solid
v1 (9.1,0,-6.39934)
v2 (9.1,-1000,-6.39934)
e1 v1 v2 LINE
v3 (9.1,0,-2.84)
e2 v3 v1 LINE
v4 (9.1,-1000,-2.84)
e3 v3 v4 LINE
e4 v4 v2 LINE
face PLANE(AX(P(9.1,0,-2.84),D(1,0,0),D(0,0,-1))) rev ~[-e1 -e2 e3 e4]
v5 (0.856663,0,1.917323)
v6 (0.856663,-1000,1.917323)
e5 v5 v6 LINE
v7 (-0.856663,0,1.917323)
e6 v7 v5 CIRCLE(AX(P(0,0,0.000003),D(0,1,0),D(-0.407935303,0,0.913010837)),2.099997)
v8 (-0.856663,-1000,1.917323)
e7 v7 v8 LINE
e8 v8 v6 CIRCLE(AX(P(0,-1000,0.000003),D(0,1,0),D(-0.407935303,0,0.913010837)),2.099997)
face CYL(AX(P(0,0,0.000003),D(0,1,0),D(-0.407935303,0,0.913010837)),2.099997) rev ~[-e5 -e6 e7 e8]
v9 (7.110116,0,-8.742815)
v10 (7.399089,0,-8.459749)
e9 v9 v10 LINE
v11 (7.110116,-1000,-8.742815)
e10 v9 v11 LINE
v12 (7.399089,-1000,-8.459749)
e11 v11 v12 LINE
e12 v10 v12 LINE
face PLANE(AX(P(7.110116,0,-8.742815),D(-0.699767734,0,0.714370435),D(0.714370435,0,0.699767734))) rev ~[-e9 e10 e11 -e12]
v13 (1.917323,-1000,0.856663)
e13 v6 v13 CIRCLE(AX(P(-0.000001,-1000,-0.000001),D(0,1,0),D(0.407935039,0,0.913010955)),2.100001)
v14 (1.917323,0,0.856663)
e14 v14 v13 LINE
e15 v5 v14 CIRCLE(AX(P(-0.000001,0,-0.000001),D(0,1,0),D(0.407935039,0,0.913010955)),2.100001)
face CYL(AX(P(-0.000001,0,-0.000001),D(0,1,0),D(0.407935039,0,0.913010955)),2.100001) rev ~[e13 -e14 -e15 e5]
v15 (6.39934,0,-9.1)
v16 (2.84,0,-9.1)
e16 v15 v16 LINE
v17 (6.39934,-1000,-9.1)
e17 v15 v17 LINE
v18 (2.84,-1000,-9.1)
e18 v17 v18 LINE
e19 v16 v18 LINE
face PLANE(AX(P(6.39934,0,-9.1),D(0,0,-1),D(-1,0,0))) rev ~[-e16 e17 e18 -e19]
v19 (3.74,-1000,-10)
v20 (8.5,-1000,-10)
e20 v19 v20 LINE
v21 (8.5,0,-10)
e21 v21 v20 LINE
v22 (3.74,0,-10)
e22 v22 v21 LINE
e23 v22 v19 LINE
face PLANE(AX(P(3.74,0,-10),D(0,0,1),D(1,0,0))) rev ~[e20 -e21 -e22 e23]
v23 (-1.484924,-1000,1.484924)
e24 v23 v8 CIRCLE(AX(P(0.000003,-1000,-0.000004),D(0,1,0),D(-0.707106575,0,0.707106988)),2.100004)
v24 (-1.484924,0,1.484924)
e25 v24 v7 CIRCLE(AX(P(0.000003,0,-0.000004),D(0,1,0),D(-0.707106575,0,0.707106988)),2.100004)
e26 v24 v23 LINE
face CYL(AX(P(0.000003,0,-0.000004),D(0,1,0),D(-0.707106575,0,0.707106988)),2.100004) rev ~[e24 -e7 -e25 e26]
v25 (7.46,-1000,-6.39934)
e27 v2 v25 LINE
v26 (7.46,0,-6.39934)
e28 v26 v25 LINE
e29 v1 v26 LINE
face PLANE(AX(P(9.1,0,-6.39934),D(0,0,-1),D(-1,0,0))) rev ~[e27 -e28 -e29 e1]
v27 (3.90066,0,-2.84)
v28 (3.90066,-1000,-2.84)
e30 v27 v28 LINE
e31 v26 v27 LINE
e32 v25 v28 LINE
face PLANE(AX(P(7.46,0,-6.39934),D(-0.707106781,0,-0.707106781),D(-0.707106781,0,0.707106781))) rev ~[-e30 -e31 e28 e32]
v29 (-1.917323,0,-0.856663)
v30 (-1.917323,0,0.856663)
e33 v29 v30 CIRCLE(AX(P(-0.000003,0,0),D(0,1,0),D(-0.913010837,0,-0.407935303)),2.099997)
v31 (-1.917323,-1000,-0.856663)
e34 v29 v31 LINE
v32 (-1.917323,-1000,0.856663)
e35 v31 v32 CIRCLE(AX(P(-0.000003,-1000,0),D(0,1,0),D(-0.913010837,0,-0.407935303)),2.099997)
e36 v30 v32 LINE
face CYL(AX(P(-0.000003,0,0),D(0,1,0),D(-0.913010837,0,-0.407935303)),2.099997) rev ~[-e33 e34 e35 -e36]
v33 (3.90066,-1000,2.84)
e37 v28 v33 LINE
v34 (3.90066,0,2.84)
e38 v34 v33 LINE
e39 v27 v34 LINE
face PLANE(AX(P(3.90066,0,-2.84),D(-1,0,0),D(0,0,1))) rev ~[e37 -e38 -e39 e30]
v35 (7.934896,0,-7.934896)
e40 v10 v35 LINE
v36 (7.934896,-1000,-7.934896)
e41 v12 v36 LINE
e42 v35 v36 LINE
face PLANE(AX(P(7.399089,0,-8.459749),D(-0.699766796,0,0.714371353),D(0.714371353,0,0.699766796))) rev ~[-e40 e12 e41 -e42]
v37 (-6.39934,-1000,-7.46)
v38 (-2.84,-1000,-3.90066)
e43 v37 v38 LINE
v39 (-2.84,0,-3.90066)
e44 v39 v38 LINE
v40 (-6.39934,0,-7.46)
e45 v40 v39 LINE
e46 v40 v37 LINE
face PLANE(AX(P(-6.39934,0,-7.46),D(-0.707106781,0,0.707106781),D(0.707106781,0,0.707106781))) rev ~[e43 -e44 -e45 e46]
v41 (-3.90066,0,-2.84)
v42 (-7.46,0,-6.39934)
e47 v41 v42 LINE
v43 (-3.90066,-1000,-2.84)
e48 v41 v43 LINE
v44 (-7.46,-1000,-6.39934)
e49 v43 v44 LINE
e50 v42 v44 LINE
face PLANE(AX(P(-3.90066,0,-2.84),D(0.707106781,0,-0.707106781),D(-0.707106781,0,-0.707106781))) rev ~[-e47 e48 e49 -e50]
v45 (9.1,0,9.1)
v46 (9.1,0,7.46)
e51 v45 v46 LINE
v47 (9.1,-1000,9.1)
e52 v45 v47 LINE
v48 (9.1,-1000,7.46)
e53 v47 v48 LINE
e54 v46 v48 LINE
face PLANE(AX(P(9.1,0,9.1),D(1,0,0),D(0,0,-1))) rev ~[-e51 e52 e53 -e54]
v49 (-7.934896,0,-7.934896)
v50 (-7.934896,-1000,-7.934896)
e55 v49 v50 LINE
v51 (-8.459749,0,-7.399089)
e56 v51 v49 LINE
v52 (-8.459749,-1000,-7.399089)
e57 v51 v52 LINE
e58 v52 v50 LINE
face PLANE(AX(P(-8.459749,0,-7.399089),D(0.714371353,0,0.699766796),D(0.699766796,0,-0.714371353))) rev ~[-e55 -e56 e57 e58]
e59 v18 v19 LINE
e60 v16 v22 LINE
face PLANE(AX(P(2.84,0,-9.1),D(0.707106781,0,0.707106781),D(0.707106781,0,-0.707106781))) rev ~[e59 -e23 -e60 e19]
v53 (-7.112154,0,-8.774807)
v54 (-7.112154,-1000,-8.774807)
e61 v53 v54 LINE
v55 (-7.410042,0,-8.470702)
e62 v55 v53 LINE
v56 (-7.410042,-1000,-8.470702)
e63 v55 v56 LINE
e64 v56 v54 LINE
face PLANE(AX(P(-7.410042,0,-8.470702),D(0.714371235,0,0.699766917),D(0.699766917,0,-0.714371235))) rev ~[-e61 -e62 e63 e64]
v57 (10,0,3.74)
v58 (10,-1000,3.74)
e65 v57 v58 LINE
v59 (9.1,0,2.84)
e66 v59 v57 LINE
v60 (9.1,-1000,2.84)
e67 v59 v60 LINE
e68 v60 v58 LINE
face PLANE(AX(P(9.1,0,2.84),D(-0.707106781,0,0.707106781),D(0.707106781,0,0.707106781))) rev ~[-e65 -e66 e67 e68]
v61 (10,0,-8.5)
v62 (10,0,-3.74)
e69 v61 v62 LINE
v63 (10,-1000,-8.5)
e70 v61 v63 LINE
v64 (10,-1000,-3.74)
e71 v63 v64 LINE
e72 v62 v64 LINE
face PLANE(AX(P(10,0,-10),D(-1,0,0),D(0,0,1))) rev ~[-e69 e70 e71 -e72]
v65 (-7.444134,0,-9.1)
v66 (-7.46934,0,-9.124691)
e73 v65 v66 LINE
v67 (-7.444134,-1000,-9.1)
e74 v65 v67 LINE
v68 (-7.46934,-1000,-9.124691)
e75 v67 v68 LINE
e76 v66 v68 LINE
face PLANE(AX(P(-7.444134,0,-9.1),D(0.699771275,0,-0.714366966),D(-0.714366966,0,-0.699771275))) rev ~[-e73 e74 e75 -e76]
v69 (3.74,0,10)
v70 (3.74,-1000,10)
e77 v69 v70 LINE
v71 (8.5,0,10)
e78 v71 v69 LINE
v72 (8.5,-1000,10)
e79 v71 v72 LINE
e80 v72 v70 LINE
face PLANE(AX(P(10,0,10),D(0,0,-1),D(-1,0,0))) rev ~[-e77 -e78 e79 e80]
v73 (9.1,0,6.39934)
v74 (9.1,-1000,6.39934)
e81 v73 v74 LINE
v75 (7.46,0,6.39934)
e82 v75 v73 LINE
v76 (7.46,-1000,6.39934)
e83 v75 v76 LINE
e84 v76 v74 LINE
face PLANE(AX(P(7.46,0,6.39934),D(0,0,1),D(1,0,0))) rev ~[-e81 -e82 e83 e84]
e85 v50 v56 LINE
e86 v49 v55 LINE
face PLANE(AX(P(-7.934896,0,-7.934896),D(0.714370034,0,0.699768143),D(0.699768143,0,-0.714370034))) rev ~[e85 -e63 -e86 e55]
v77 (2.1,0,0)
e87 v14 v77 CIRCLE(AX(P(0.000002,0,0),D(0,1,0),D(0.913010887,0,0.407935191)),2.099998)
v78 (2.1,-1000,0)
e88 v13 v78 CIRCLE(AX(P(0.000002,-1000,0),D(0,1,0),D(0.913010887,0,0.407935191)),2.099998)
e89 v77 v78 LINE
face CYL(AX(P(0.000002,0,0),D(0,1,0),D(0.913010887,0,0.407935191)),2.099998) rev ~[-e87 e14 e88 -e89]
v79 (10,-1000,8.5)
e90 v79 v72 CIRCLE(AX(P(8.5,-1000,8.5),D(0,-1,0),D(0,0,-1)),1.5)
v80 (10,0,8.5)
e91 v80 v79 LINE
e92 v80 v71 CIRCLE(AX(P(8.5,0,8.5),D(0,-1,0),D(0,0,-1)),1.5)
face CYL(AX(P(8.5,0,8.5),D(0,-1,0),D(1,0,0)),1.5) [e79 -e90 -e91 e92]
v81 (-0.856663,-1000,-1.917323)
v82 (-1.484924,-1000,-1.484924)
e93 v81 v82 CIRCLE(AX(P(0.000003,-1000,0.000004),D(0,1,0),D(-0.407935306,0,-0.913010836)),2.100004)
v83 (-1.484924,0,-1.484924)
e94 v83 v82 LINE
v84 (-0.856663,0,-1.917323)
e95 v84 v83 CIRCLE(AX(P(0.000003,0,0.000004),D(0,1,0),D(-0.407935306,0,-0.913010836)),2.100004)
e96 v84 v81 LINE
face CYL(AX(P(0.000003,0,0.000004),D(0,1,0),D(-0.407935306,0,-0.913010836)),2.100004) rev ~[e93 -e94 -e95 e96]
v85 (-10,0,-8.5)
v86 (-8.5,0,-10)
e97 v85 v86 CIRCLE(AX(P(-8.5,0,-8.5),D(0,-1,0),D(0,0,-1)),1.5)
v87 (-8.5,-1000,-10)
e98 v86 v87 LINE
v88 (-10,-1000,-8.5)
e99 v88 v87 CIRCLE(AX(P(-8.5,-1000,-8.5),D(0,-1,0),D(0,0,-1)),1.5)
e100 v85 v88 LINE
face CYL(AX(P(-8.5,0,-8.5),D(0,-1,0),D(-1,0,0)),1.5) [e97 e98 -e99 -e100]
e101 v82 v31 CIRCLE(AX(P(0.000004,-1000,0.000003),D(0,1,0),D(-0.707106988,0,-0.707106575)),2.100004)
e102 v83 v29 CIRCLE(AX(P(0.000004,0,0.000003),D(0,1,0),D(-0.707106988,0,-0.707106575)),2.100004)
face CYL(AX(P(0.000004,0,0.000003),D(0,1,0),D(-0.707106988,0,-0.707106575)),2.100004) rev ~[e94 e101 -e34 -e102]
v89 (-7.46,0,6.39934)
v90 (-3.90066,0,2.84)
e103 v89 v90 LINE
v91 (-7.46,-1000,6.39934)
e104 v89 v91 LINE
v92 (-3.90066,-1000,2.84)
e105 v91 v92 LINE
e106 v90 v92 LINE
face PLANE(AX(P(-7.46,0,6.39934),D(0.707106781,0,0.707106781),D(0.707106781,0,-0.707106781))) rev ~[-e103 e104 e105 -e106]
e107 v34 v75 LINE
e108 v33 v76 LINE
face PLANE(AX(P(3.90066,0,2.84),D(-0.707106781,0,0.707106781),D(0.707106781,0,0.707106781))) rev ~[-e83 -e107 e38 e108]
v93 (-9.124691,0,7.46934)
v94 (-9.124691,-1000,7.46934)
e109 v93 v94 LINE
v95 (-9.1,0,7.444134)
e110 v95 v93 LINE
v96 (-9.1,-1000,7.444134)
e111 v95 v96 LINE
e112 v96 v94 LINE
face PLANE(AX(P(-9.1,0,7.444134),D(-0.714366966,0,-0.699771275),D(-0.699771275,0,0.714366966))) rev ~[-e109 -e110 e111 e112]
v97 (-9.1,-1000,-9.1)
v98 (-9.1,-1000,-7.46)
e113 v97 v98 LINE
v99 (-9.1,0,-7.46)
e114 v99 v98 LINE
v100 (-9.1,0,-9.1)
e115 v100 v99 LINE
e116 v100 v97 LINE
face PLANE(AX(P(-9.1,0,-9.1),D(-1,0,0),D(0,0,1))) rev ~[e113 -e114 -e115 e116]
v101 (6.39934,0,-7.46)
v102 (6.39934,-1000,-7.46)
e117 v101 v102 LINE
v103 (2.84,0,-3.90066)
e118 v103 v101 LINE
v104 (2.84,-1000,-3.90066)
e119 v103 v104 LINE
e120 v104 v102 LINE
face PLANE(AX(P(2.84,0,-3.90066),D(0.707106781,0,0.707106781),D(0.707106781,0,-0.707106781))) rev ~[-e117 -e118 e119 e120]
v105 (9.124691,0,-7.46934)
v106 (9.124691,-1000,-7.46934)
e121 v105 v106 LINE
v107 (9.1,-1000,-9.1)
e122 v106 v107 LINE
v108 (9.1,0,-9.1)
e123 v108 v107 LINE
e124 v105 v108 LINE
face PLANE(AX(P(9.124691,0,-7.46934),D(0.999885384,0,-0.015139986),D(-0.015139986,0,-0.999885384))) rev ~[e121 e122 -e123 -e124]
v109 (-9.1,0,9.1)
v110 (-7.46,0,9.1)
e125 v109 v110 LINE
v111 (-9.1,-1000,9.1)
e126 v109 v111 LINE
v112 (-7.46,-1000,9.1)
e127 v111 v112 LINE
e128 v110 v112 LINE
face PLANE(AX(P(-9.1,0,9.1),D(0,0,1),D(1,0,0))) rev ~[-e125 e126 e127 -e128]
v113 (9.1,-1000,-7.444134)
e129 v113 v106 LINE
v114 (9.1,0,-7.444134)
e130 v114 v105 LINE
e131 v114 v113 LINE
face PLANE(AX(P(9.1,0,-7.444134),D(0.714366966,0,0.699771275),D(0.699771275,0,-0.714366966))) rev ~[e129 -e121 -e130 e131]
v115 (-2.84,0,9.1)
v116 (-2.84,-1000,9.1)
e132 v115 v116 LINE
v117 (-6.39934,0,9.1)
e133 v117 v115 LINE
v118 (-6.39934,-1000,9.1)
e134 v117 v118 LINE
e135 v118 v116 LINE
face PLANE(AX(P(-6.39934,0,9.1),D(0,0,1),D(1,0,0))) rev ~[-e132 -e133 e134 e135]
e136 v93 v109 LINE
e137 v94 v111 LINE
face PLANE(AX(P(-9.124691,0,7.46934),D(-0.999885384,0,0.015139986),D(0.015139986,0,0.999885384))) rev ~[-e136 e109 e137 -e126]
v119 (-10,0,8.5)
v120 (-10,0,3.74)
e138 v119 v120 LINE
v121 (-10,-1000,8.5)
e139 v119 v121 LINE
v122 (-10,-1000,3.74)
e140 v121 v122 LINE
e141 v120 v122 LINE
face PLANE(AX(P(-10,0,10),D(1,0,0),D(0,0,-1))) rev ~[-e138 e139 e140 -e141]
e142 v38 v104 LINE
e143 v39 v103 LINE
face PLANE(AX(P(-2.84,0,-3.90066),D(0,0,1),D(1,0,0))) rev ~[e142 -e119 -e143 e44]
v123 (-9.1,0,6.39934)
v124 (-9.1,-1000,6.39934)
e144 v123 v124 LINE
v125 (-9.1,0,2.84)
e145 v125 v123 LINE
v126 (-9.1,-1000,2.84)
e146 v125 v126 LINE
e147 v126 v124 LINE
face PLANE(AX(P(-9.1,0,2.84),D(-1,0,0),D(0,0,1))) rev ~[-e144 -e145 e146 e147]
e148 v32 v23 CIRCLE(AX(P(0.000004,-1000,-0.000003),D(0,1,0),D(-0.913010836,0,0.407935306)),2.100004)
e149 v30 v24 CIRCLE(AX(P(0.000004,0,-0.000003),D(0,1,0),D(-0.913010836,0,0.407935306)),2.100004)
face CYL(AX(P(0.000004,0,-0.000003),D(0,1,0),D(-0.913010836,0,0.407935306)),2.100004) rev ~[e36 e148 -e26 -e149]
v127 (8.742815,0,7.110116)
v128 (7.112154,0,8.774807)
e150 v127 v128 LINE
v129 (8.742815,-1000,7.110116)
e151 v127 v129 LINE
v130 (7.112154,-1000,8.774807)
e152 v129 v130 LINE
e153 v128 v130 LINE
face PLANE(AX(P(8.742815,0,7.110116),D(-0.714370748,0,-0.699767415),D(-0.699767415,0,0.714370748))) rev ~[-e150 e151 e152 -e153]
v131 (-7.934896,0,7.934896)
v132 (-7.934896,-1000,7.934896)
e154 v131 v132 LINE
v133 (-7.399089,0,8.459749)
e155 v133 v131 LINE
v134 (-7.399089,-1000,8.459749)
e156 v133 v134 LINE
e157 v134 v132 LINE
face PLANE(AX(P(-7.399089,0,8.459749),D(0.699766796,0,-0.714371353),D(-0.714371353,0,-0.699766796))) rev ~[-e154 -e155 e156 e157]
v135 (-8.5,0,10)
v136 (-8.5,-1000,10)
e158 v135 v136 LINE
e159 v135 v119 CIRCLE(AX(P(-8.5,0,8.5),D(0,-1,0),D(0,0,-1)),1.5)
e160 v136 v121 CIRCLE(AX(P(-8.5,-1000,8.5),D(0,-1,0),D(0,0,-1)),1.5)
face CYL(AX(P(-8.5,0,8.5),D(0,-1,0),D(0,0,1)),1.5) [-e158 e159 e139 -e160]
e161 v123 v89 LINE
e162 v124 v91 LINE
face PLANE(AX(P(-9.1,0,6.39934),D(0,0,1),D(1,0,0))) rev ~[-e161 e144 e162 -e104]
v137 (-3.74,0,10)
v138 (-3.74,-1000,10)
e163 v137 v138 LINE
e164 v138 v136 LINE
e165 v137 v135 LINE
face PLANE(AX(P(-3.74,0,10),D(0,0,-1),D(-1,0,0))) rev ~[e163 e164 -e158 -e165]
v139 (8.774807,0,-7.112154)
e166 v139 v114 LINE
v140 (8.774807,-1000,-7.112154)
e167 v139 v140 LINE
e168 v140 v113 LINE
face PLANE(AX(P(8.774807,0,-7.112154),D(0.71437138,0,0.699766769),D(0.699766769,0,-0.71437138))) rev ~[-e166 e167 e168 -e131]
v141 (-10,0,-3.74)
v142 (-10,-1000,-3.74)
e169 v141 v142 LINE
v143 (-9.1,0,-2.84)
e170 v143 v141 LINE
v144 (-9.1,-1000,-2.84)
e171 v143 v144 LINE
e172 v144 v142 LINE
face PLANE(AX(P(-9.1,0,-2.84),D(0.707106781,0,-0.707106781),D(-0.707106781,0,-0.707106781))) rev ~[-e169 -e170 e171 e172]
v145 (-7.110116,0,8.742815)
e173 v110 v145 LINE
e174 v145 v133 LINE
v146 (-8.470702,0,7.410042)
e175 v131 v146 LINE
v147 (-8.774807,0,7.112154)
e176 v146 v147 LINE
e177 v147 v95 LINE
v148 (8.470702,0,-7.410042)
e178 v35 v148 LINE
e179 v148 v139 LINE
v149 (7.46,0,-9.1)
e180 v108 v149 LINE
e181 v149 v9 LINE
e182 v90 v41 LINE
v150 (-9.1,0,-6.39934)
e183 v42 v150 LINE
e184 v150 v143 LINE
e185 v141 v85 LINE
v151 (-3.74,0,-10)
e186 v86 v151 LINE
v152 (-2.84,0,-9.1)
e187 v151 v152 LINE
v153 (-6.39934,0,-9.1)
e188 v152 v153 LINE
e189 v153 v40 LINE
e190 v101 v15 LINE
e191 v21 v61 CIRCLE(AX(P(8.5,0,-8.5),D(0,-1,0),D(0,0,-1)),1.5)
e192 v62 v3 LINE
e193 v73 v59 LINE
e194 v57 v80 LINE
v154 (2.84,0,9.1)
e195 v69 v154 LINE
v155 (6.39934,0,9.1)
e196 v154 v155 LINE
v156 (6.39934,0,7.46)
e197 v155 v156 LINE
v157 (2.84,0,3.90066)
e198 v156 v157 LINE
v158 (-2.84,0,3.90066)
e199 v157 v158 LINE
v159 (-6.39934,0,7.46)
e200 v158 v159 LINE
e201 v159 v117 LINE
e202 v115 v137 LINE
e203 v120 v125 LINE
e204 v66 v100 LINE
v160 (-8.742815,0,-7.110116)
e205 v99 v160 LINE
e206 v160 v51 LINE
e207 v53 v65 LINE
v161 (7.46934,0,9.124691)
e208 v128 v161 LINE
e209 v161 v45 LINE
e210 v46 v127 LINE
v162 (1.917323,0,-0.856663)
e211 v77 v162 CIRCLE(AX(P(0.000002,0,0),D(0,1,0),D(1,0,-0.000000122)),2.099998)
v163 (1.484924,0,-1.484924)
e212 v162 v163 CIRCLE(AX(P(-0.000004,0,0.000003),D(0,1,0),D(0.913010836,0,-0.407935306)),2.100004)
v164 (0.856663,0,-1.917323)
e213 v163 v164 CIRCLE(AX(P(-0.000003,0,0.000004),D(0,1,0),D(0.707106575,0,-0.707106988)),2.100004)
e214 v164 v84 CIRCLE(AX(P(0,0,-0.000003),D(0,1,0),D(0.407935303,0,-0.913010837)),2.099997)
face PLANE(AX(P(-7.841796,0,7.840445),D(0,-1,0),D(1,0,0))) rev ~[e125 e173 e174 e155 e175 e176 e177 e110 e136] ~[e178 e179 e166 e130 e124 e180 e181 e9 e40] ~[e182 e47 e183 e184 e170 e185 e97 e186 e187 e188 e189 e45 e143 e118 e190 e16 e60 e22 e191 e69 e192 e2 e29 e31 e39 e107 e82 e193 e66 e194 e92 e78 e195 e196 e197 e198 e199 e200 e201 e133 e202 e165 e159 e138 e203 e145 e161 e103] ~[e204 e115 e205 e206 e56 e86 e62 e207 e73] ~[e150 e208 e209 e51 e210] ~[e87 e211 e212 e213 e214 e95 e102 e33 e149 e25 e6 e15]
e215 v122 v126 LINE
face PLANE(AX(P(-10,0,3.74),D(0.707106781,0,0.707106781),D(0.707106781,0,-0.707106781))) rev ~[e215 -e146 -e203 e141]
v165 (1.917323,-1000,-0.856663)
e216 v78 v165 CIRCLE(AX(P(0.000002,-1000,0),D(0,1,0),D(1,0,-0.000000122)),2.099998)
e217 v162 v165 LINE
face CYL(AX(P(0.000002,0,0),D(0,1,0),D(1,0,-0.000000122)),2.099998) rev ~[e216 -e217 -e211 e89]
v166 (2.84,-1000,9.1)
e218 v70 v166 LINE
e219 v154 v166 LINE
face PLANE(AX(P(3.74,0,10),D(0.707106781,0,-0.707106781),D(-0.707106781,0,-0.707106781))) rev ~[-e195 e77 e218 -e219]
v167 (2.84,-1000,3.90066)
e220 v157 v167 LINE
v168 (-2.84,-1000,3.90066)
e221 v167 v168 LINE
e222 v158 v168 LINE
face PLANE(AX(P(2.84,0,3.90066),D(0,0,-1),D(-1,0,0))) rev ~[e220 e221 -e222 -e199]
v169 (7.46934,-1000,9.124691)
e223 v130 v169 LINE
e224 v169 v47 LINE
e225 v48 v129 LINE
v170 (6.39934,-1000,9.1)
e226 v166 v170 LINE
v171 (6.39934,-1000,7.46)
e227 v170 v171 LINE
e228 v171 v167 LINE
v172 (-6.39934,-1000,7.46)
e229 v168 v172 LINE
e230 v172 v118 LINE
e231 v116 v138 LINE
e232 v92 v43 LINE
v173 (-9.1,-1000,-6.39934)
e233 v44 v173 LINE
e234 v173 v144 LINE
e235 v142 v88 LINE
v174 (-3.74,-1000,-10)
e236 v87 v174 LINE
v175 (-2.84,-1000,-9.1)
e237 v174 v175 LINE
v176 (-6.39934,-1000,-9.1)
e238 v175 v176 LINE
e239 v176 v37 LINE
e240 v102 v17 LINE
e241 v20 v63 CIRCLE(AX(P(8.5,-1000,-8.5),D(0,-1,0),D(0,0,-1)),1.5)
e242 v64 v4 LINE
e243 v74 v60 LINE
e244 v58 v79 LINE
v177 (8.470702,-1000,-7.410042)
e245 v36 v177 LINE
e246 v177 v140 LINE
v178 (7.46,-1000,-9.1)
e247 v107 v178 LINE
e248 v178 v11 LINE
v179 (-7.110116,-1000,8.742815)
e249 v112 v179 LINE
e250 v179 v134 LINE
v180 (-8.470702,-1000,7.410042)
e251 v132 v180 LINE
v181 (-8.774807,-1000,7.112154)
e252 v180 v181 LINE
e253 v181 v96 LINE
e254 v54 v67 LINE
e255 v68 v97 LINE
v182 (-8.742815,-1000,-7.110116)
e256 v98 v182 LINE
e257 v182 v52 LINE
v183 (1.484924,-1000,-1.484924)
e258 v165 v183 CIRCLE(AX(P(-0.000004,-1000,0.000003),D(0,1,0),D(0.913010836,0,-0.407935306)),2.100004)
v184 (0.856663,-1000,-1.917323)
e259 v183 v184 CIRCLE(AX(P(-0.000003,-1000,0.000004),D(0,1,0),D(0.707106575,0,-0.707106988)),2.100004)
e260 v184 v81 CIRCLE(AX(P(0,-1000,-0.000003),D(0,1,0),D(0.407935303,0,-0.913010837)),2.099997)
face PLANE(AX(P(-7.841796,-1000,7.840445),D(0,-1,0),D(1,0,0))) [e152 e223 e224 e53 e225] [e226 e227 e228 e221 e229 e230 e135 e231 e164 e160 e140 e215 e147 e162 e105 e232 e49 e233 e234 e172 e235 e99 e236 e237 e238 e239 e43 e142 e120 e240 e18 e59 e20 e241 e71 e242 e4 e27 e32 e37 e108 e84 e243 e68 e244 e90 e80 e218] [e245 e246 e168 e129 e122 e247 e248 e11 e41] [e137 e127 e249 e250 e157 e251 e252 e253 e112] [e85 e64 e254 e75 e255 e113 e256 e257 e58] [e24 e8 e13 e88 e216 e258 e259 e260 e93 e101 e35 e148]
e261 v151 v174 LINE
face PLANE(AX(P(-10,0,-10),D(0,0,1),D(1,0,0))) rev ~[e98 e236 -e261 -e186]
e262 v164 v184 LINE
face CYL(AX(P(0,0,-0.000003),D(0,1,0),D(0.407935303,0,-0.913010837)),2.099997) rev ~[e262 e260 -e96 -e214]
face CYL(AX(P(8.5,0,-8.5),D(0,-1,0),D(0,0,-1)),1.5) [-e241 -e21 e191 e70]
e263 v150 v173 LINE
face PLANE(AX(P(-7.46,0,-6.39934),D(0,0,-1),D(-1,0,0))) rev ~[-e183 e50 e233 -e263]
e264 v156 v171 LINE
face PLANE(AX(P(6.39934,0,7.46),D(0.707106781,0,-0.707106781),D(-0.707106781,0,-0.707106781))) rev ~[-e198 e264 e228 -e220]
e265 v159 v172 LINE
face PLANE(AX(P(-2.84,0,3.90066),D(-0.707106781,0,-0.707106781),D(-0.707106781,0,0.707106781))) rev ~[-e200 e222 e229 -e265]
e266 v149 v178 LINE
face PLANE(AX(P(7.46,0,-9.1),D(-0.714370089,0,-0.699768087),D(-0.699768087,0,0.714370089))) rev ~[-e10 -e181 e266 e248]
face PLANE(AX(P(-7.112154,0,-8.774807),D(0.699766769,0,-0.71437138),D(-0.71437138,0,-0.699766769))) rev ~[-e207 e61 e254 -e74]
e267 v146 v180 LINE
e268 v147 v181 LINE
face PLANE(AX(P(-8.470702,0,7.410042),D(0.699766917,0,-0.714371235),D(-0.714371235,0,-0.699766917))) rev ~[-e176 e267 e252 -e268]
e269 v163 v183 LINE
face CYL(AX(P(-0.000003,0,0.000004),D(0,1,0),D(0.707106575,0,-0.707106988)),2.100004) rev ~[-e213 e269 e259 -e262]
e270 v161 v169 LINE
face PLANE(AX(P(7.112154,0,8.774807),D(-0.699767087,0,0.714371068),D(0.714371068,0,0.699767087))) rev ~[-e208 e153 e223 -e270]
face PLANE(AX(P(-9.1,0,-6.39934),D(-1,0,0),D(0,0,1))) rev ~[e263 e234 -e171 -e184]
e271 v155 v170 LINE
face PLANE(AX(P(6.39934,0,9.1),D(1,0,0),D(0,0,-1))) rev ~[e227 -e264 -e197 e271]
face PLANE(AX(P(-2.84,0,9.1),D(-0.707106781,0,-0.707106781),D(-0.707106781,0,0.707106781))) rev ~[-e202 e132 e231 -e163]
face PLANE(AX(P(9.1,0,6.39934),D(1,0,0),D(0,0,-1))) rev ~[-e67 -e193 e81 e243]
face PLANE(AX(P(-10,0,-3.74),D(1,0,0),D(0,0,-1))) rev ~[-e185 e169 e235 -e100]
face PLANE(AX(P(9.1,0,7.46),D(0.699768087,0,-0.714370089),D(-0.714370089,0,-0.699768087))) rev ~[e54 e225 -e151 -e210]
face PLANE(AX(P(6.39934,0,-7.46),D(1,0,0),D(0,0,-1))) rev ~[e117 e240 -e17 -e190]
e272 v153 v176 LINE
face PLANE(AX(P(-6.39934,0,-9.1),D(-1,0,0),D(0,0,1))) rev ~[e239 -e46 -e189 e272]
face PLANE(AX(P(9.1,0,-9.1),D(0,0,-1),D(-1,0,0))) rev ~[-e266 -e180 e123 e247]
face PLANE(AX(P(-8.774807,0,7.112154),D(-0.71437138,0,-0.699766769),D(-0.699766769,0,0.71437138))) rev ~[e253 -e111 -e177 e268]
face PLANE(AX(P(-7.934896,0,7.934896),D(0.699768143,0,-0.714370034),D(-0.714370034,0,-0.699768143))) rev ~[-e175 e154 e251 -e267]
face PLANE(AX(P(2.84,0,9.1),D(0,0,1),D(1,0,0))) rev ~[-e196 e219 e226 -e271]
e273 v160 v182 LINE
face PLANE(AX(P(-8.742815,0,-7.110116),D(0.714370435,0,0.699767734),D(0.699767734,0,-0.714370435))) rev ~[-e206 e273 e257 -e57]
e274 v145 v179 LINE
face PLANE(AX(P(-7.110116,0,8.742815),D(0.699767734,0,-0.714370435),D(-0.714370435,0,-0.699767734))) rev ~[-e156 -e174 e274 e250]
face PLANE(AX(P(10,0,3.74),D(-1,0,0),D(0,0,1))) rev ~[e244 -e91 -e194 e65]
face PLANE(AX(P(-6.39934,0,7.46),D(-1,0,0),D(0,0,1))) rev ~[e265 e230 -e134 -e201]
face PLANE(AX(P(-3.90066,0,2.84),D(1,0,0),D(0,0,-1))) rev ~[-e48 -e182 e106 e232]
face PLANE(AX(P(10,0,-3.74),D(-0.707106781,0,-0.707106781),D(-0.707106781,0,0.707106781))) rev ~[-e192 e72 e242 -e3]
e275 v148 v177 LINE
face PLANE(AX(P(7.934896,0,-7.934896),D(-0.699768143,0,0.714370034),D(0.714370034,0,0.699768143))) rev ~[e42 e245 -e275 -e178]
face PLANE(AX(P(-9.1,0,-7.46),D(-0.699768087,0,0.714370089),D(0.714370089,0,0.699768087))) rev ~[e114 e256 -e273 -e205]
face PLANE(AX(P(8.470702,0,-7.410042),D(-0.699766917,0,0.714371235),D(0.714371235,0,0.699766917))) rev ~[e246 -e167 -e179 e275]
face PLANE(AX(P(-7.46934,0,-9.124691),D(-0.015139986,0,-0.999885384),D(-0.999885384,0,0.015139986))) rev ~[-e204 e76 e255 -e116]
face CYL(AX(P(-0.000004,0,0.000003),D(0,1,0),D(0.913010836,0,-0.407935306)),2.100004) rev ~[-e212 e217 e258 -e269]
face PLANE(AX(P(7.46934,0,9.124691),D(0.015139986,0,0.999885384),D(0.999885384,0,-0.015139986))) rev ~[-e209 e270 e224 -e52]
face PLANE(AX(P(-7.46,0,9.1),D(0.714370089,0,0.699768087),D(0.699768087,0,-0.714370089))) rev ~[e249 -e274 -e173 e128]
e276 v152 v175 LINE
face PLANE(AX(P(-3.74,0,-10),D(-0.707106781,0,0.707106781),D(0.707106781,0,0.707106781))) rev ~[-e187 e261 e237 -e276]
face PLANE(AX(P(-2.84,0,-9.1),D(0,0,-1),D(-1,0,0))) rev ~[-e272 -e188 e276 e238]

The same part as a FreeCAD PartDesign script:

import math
import FreeCAD as App
import Part
import Sketcher
Q = App.Units.Quantity


def edges_at(feature, points):
    """Names of the edges that pass closest to the given points."""
    edges = feature.Shape.Edges
    near = lambda p: min(range(len(edges)), key=lambda i: edges[i].distToShape(Part.Vertex(*p))[0])
    return sorted({f"Edge{near(p) + 1}" for p in points})

doc = App.newDocument("Part")
body = doc.addObject("PartDesign::Body", "Body")

sketch1 = doc.addObject("Sketcher::SketchObject", "Sketch")
body.addObject(sketch1)
sketch1.AttachmentSupport = (doc.XZ_Plane, [""])
sketch1.MapMode = "FlatFace"
sketch1.addGeometry(Part.LineSegment(App.Vector(-2.84, 9.1, 0), App.Vector(-3.74, 10, 0)), False)
sketch1.addGeometry(Part.LineSegment(App.Vector(-3.74, 10, 0), App.Vector(-10, 10, 0)), False)
sketch1.addGeometry(Part.LineSegment(App.Vector(-10, 10, 0), App.Vector(-10, 3.74, 0)), False)
sketch1.addGeometry(Part.LineSegment(App.Vector(-10, 3.74, 0), App.Vector(-9.1, 2.84, 0)), False)
sketch1.addGeometry(Part.LineSegment(App.Vector(-9.1, 2.84, 0), App.Vector(-9.1, 6.399, 0)), False)
sketch1.addGeometry(Part.LineSegment(App.Vector(-9.1, 6.399, 0), App.Vector(-7.46, 6.399, 0)), False)
sketch1.addGeometry(Part.LineSegment(App.Vector(-7.46, 6.399, 0), App.Vector(-3.901, 2.84, 0)), False)
sketch1.addGeometry(Part.LineSegment(App.Vector(-3.901, 2.84, 0), App.Vector(-3.901, -2.84, 0)), False)
sketch1.addGeometry(Part.LineSegment(App.Vector(-3.901, -2.84, 0), App.Vector(-7.46, -6.399, 0)), False)
sketch1.addGeometry(Part.LineSegment(App.Vector(-7.46, -6.399, 0), App.Vector(-9.1, -6.399, 0)), False)
sketch1.addGeometry(Part.LineSegment(App.Vector(-9.1, -6.399, 0), App.Vector(-9.1, -2.84, 0)), False)
sketch1.addGeometry(Part.LineSegment(App.Vector(-9.1, -2.84, 0), App.Vector(-10, -3.74, 0)), False)
sketch1.addGeometry(Part.LineSegment(App.Vector(-10, -3.74, 0), App.Vector(-10, -10, 0)), False)
sketch1.addGeometry(Part.LineSegment(App.Vector(-10, -10, 0), App.Vector(-3.74, -10, 0)), False)
sketch1.addGeometry(Part.LineSegment(App.Vector(-3.74, -10, 0), App.Vector(-2.84, -9.1, 0)), False)
sketch1.addGeometry(Part.LineSegment(App.Vector(-2.84, -9.1, 0), App.Vector(-6.399, -9.1, 0)), False)
sketch1.addGeometry(Part.LineSegment(App.Vector(-6.399, -9.1, 0), App.Vector(-6.399, -7.46, 0)), False)
sketch1.addGeometry(Part.LineSegment(App.Vector(-6.399, -7.46, 0), App.Vector(-2.84, -3.901, 0)), False)
sketch1.addGeometry(Part.LineSegment(App.Vector(-2.84, -3.901, 0), App.Vector(2.84, -3.901, 0)), False)
sketch1.addGeometry(Part.LineSegment(App.Vector(2.84, -3.901, 0), App.Vector(6.399, -7.46, 0)), False)
sketch1.addGeometry(Part.LineSegment(App.Vector(6.399, -7.46, 0), App.Vector(6.399, -9.1, 0)), False)
sketch1.addGeometry(Part.LineSegment(App.Vector(6.399, -9.1, 0), App.Vector(2.84, -9.1, 0)), False)
sketch1.addGeometry(Part.LineSegment(App.Vector(2.84, -9.1, 0), App.Vector(3.74, -10, 0)), False)
sketch1.addGeometry(Part.LineSegment(App.Vector(3.74, -10, 0), App.Vector(10, -10, 0)), False)
sketch1.addGeometry(Part.LineSegment(App.Vector(10, -10, 0), App.Vector(10, -3.74, 0)), False)
sketch1.addGeometry(Part.LineSegment(App.Vector(10, -3.74, 0), App.Vector(9.1, -2.84, 0)), False)
sketch1.addGeometry(Part.LineSegment(App.Vector(9.1, -2.84, 0), App.Vector(9.1, -6.399, 0)), False)
sketch1.addGeometry(Part.LineSegment(App.Vector(9.1, -6.399, 0), App.Vector(7.46, -6.399, 0)), False)
sketch1.addGeometry(Part.LineSegment(App.Vector(7.46, -6.399, 0), App.Vector(3.901, -2.84, 0)), False)
sketch1.addGeometry(Part.LineSegment(App.Vector(3.901, -2.84, 0), App.Vector(3.901, 2.84, 0)), False)
sketch1.addGeometry(Part.LineSegment(App.Vector(3.901, 2.84, 0), App.Vector(7.46, 6.399, 0)), False)
sketch1.addGeometry(Part.LineSegment(App.Vector(7.46, 6.399, 0), App.Vector(9.1, 6.399, 0)), False)
sketch1.addGeometry(Part.LineSegment(App.Vector(9.1, 6.399, 0), App.Vector(9.1, 2.84, 0)), False)
sketch1.addGeometry(Part.LineSegment(App.Vector(9.1, 2.84, 0), App.Vector(10, 3.74, 0)), False)
sketch1.addGeometry(Part.LineSegment(App.Vector(10, 3.74, 0), App.Vector(10, 10, 0)), False)
sketch1.addGeometry(Part.LineSegment(App.Vector(10, 10, 0), App.Vector(3.74, 10, 0)), False)
sketch1.addGeometry(Part.LineSegment(App.Vector(3.74, 10, 0), App.Vector(2.84, 9.1, 0)), False)
sketch1.addGeometry(Part.LineSegment(App.Vector(2.84, 9.1, 0), App.Vector(6.399, 9.1, 0)), False)
sketch1.addGeometry(Part.LineSegment(App.Vector(6.399, 9.1, 0), App.Vector(6.399, 7.46, 0)), False)
sketch1.addGeometry(Part.LineSegment(App.Vector(6.399, 7.46, 0), App.Vector(2.84, 3.901, 0)), False)
sketch1.addGeometry(Part.LineSegment(App.Vector(2.84, 3.901, 0), App.Vector(-2.84, 3.901, 0)), False)
sketch1.addGeometry(Part.LineSegment(App.Vector(-2.84, 3.901, 0), App.Vector(-6.399, 7.46, 0)), False)
sketch1.addGeometry(Part.LineSegment(App.Vector(-6.399, 7.46, 0), App.Vector(-6.399, 9.1, 0)), False)
sketch1.addGeometry(Part.LineSegment(App.Vector(-6.399, 9.1, 0), App.Vector(-2.84, 9.1, 0)), False)
sketch1.addGeometry(Part.LineSegment(App.Vector(-8.46, -7.399, 0), App.Vector(-7.935, -7.935, 0)), False)
sketch1.addGeometry(Part.LineSegment(App.Vector(-7.935, -7.935, 0), App.Vector(-7.41, -8.471, 0)), False)
sketch1.addGeometry(Part.LineSegment(App.Vector(-7.41, -8.471, 0), App.Vector(-7.112, -8.775, 0)), False)
sketch1.addGeometry(Part.LineSegment(App.Vector(-7.112, -8.775, 0), App.Vector(-7.444, -9.1, 0)), False)
sketch1.addGeometry(Part.LineSegment(App.Vector(-7.444, -9.1, 0), App.Vector(-7.469, -9.125, 0)), False)
sketch1.addGeometry(Part.LineSegment(App.Vector(-7.469, -9.125, 0), App.Vector(-9.1, -9.1, 0)), False)
sketch1.addGeometry(Part.LineSegment(App.Vector(-9.1, -9.1, 0), App.Vector(-9.1, -7.46, 0)), False)
sketch1.addGeometry(Part.LineSegment(App.Vector(-9.1, -7.46, 0), App.Vector(-8.743, -7.11, 0)), False)
sketch1.addGeometry(Part.LineSegment(App.Vector(-8.743, -7.11, 0), App.Vector(-8.46, -7.399, 0)), False)
sketch1.addGeometry(Part.LineSegment(App.Vector(7.399, -8.46, 0), App.Vector(7.935, -7.935, 0)), False)
sketch1.addGeometry(Part.LineSegment(App.Vector(7.935, -7.935, 0), App.Vector(8.471, -7.41, 0)), False)
sketch1.addGeometry(Part.LineSegment(App.Vector(8.471, -7.41, 0), App.Vector(8.775, -7.112, 0)), False)
sketch1.addGeometry(Part.LineSegment(App.Vector(8.775, -7.112, 0), App.Vector(9.1, -7.444, 0)), False)
sketch1.addGeometry(Part.LineSegment(App.Vector(9.1, -7.444, 0), App.Vector(9.125, -7.469, 0)), False)
sketch1.addGeometry(Part.LineSegment(App.Vector(9.125, -7.469, 0), App.Vector(9.1, -9.1, 0)), False)
sketch1.addGeometry(Part.LineSegment(App.Vector(9.1, -9.1, 0), App.Vector(7.46, -9.1, 0)), False)
sketch1.addGeometry(Part.LineSegment(App.Vector(7.46, -9.1, 0), App.Vector(7.11, -8.743, 0)), False)
sketch1.addGeometry(Part.LineSegment(App.Vector(7.11, -8.743, 0), App.Vector(7.399, -8.46, 0)), False)
sketch1.addGeometry(Part.ArcOfCircle(Part.Circle(App.Vector(0, 0, 0), App.Vector(0, 0, 1), 2.1), math.radians(-66), math.radians(-45)), False)
sketch1.addGeometry(Part.ArcOfCircle(Part.Circle(App.Vector(0, 0, 0), App.Vector(0, 0, 1), 2.1), math.radians(-114), math.radians(-66)), False)
sketch1.addGeometry(Part.ArcOfCircle(Part.Circle(App.Vector(0, 0, 0), App.Vector(0, 0, 1), 2.1), math.radians(-135), math.radians(-114)), False)
sketch1.addGeometry(Part.ArcOfCircle(Part.Circle(App.Vector(0, 0, 0), App.Vector(0, 0, 1), 2.1), math.radians(-156), math.radians(-135)), False)
sketch1.addGeometry(Part.ArcOfCircle(Part.Circle(App.Vector(0, 0, 0), App.Vector(0, 0, 1), 2.1), math.radians(156), math.radians(204)), False)
sketch1.addGeometry(Part.ArcOfCircle(Part.Circle(App.Vector(0, 0, 0), App.Vector(0, 0, 1), 2.1), math.radians(135), math.radians(156)), False)
sketch1.addGeometry(Part.ArcOfCircle(Part.Circle(App.Vector(0, 0, 0), App.Vector(0, 0, 1), 2.1), math.radians(114), math.radians(135)), False)
sketch1.addGeometry(Part.ArcOfCircle(Part.Circle(App.Vector(0, 0, 0), App.Vector(0, 0, 1), 2.1), math.radians(66), math.radians(114)), False)
sketch1.addGeometry(Part.ArcOfCircle(Part.Circle(App.Vector(0, 0, 0), App.Vector(0, 0, 1), 2.1), math.radians(24), math.radians(66)), False)
sketch1.addGeometry(Part.ArcOfCircle(Part.Circle(App.Vector(0, 0, 0), App.Vector(0, 0, 1), 2.1), math.radians(0), math.radians(24)), False)
sketch1.addGeometry(Part.ArcOfCircle(Part.Circle(App.Vector(0, 0, 0), App.Vector(0, 0, 1), 2.1), math.radians(-24), math.radians(0)), False)
sketch1.addGeometry(Part.ArcOfCircle(Part.Circle(App.Vector(0, 0, 0), App.Vector(0, 0, 1), 2.1), math.radians(-45), math.radians(-24)), False)
sketch1.addGeometry(Part.LineSegment(App.Vector(-7.935, 7.935, 0), App.Vector(-8.471, 7.41, 0)), False)
sketch1.addGeometry(Part.LineSegment(App.Vector(-8.471, 7.41, 0), App.Vector(-8.775, 7.112, 0)), False)
sketch1.addGeometry(Part.LineSegment(App.Vector(-8.775, 7.112, 0), App.Vector(-9.1, 7.444, 0)), False)
sketch1.addGeometry(Part.LineSegment(App.Vector(-9.1, 7.444, 0), App.Vector(-9.125, 7.469, 0)), False)
sketch1.addGeometry(Part.LineSegment(App.Vector(-9.125, 7.469, 0), App.Vector(-9.1, 9.1, 0)), False)
sketch1.addGeometry(Part.LineSegment(App.Vector(-9.1, 9.1, 0), App.Vector(-7.46, 9.1, 0)), False)
sketch1.addGeometry(Part.LineSegment(App.Vector(-7.46, 9.1, 0), App.Vector(-7.11, 8.743, 0)), False)
sketch1.addGeometry(Part.LineSegment(App.Vector(-7.11, 8.743, 0), App.Vector(-7.399, 8.46, 0)), False)
sketch1.addGeometry(Part.LineSegment(App.Vector(-7.399, 8.46, 0), App.Vector(-7.935, 7.935, 0)), False)
sketch1.addGeometry(Part.LineSegment(App.Vector(9.1, 7.46, 0), App.Vector(8.743, 7.11, 0)), False)
sketch1.addGeometry(Part.LineSegment(App.Vector(8.743, 7.11, 0), App.Vector(7.112, 8.775, 0)), False)
sketch1.addGeometry(Part.LineSegment(App.Vector(7.112, 8.775, 0), App.Vector(7.469, 9.125, 0)), False)
sketch1.addGeometry(Part.LineSegment(App.Vector(7.469, 9.125, 0), App.Vector(9.1, 9.1, 0)), False)
sketch1.addGeometry(Part.LineSegment(App.Vector(9.1, 9.1, 0), App.Vector(9.1, 7.46, 0)), False)
sketch1.addConstraint(Sketcher.Constraint("Coincident", 0, 2, 1, 1))
sketch1.addConstraint(Sketcher.Constraint("Coincident", 1, 2, 2, 1))
sketch1.addConstraint(Sketcher.Constraint("Coincident", 2, 2, 3, 1))
sketch1.addConstraint(Sketcher.Constraint("Coincident", 3, 2, 4, 1))
sketch1.addConstraint(Sketcher.Constraint("Coincident", 4, 2, 5, 1))
sketch1.addConstraint(Sketcher.Constraint("Coincident", 5, 2, 6, 1))
sketch1.addConstraint(Sketcher.Constraint("Coincident", 6, 2, 7, 1))
sketch1.addConstraint(Sketcher.Constraint("Coincident", 7, 2, 8, 1))
sketch1.addConstraint(Sketcher.Constraint("Coincident", 8, 2, 9, 1))
sketch1.addConstraint(Sketcher.Constraint("Coincident", 9, 2, 10, 1))
sketch1.addConstraint(Sketcher.Constraint("Coincident", 10, 2, 11, 1))
sketch1.addConstraint(Sketcher.Constraint("Coincident", 11, 2, 12, 1))
sketch1.addConstraint(Sketcher.Constraint("Coincident", 12, 2, 13, 1))
sketch1.addConstraint(Sketcher.Constraint("Coincident", 13, 2, 14, 1))
sketch1.addConstraint(Sketcher.Constraint("Coincident", 14, 2, 15, 1))
sketch1.addConstraint(Sketcher.Constraint("Coincident", 15, 2, 16, 1))
sketch1.addConstraint(Sketcher.Constraint("Coincident", 16, 2, 17, 1))
sketch1.addConstraint(Sketcher.Constraint("Coincident", 17, 2, 18, 1))
sketch1.addConstraint(Sketcher.Constraint("Coincident", 18, 2, 19, 1))
sketch1.addConstraint(Sketcher.Constraint("Coincident", 19, 2, 20, 1))
sketch1.addConstraint(Sketcher.Constraint("Coincident", 20, 2, 21, 1))
sketch1.addConstraint(Sketcher.Constraint("Coincident", 21, 2, 22, 1))
sketch1.addConstraint(Sketcher.Constraint("Coincident", 22, 2, 23, 1))
sketch1.addConstraint(Sketcher.Constraint("Coincident", 23, 2, 24, 1))
sketch1.addConstraint(Sketcher.Constraint("Coincident", 24, 2, 25, 1))
sketch1.addConstraint(Sketcher.Constraint("Coincident", 25, 2, 26, 1))
sketch1.addConstraint(Sketcher.Constraint("Coincident", 26, 2, 27, 1))
sketch1.addConstraint(Sketcher.Constraint("Coincident", 27, 2, 28, 1))
sketch1.addConstraint(Sketcher.Constraint("Coincident", 28, 2, 29, 1))
sketch1.addConstraint(Sketcher.Constraint("Coincident", 29, 2, 30, 1))
sketch1.addConstraint(Sketcher.Constraint("Coincident", 30, 2, 31, 1))
sketch1.addConstraint(Sketcher.Constraint("Coincident", 31, 2, 32, 1))
sketch1.addConstraint(Sketcher.Constraint("Coincident", 32, 2, 33, 1))
sketch1.addConstraint(Sketcher.Constraint("Coincident", 33, 2, 34, 1))
sketch1.addConstraint(Sketcher.Constraint("Coincident", 34, 2, 35, 1))
sketch1.addConstraint(Sketcher.Constraint("Coincident", 35, 2, 36, 1))
sketch1.addConstraint(Sketcher.Constraint("Coincident", 36, 2, 37, 1))
sketch1.addConstraint(Sketcher.Constraint("Coincident", 37, 2, 38, 1))
sketch1.addConstraint(Sketcher.Constraint("Coincident", 38, 2, 39, 1))
sketch1.addConstraint(Sketcher.Constraint("Coincident", 39, 2, 40, 1))
sketch1.addConstraint(Sketcher.Constraint("Coincident", 40, 2, 41, 1))
sketch1.addConstraint(Sketcher.Constraint("Coincident", 41, 2, 42, 1))
sketch1.addConstraint(Sketcher.Constraint("Coincident", 42, 2, 43, 1))
sketch1.addConstraint(Sketcher.Constraint("Coincident", 43, 2, 0, 1))
sketch1.addConstraint(Sketcher.Constraint("Coincident", 44, 2, 45, 1))
sketch1.addConstraint(Sketcher.Constraint("Coincident", 45, 2, 46, 1))
sketch1.addConstraint(Sketcher.Constraint("Coincident", 46, 2, 47, 1))
sketch1.addConstraint(Sketcher.Constraint("Coincident", 47, 2, 48, 1))
sketch1.addConstraint(Sketcher.Constraint("Coincident", 48, 2, 49, 1))
sketch1.addConstraint(Sketcher.Constraint("Coincident", 49, 2, 50, 1))
sketch1.addConstraint(Sketcher.Constraint("Coincident", 50, 2, 51, 1))
sketch1.addConstraint(Sketcher.Constraint("Coincident", 51, 2, 52, 1))
sketch1.addConstraint(Sketcher.Constraint("Coincident", 52, 2, 44, 1))
sketch1.addConstraint(Sketcher.Constraint("Coincident", 53, 2, 54, 1))
sketch1.addConstraint(Sketcher.Constraint("Coincident", 54, 2, 55, 1))
sketch1.addConstraint(Sketcher.Constraint("Coincident", 55, 2, 56, 1))
sketch1.addConstraint(Sketcher.Constraint("Coincident", 56, 2, 57, 1))
sketch1.addConstraint(Sketcher.Constraint("Coincident", 57, 2, 58, 1))
sketch1.addConstraint(Sketcher.Constraint("Coincident", 58, 2, 59, 1))
sketch1.addConstraint(Sketcher.Constraint("Coincident", 59, 2, 60, 1))
sketch1.addConstraint(Sketcher.Constraint("Coincident", 60, 2, 61, 1))
sketch1.addConstraint(Sketcher.Constraint("Coincident", 61, 2, 53, 1))
sketch1.addConstraint(Sketcher.Constraint("Tangent", 62, 1, 63, 2))
sketch1.addConstraint(Sketcher.Constraint("Tangent", 63, 1, 64, 2))
sketch1.addConstraint(Sketcher.Constraint("Tangent", 64, 1, 65, 2))
sketch1.addConstraint(Sketcher.Constraint("Tangent", 65, 1, 66, 2))
sketch1.addConstraint(Sketcher.Constraint("Tangent", 66, 1, 67, 2))
sketch1.addConstraint(Sketcher.Constraint("Tangent", 67, 1, 68, 2))
sketch1.addConstraint(Sketcher.Constraint("Tangent", 68, 1, 69, 2))
sketch1.addConstraint(Sketcher.Constraint("Tangent", 69, 1, 70, 2))
sketch1.addConstraint(Sketcher.Constraint("Tangent", 70, 1, 71, 2))
sketch1.addConstraint(Sketcher.Constraint("Tangent", 71, 1, 72, 2))
sketch1.addConstraint(Sketcher.Constraint("Tangent", 72, 1, 73, 2))
sketch1.addConstraint(Sketcher.Constraint("Tangent", 73, 1, 62, 2))
sketch1.addConstraint(Sketcher.Constraint("Coincident", 74, 2, 75, 1))
sketch1.addConstraint(Sketcher.Constraint("Coincident", 75, 2, 76, 1))
sketch1.addConstraint(Sketcher.Constraint("Coincident", 76, 2, 77, 1))
sketch1.addConstraint(Sketcher.Constraint("Coincident", 77, 2, 78, 1))
sketch1.addConstraint(Sketcher.Constraint("Coincident", 78, 2, 79, 1))
sketch1.addConstraint(Sketcher.Constraint("Coincident", 79, 2, 80, 1))
sketch1.addConstraint(Sketcher.Constraint("Coincident", 80, 2, 81, 1))
sketch1.addConstraint(Sketcher.Constraint("Coincident", 81, 2, 82, 1))
sketch1.addConstraint(Sketcher.Constraint("Coincident", 82, 2, 74, 1))
sketch1.addConstraint(Sketcher.Constraint("Coincident", 83, 2, 84, 1))
sketch1.addConstraint(Sketcher.Constraint("Coincident", 84, 2, 85, 1))
sketch1.addConstraint(Sketcher.Constraint("Coincident", 85, 2, 86, 1))
sketch1.addConstraint(Sketcher.Constraint("Coincident", 86, 2, 87, 1))
sketch1.addConstraint(Sketcher.Constraint("Coincident", 87, 2, 83, 1))
sketch1.addConstraint(Sketcher.Constraint("Horizontal", 1))
sketch1.addConstraint(Sketcher.Constraint("Vertical", 2))
sketch1.addConstraint(Sketcher.Constraint("Vertical", 4))
sketch1.addConstraint(Sketcher.Constraint("Horizontal", 5))
sketch1.addConstraint(Sketcher.Constraint("Vertical", 7))
sketch1.addConstraint(Sketcher.Constraint("Horizontal", 9))
sketch1.addConstraint(Sketcher.Constraint("Vertical", 10))
sketch1.addConstraint(Sketcher.Constraint("Vertical", 12))
sketch1.addConstraint(Sketcher.Constraint("Horizontal", 13))
sketch1.addConstraint(Sketcher.Constraint("Horizontal", 15))
sketch1.addConstraint(Sketcher.Constraint("Vertical", 16))
sketch1.addConstraint(Sketcher.Constraint("Horizontal", 18))
sketch1.addConstraint(Sketcher.Constraint("Vertical", 20))
sketch1.addConstraint(Sketcher.Constraint("Horizontal", 21))
sketch1.addConstraint(Sketcher.Constraint("Horizontal", 23))
sketch1.addConstraint(Sketcher.Constraint("Vertical", 24))
sketch1.addConstraint(Sketcher.Constraint("Vertical", 26))
sketch1.addConstraint(Sketcher.Constraint("Horizontal", 27))
sketch1.addConstraint(Sketcher.Constraint("Vertical", 29))
sketch1.addConstraint(Sketcher.Constraint("Horizontal", 31))
sketch1.addConstraint(Sketcher.Constraint("Vertical", 32))
sketch1.addConstraint(Sketcher.Constraint("Vertical", 34))
sketch1.addConstraint(Sketcher.Constraint("Horizontal", 35))
sketch1.addConstraint(Sketcher.Constraint("Horizontal", 37))
sketch1.addConstraint(Sketcher.Constraint("Vertical", 38))
sketch1.addConstraint(Sketcher.Constraint("Horizontal", 40))
sketch1.addConstraint(Sketcher.Constraint("Vertical", 42))
sketch1.addConstraint(Sketcher.Constraint("Horizontal", 43))
sketch1.addConstraint(Sketcher.Constraint("Vertical", 50))
sketch1.addConstraint(Sketcher.Constraint("Horizontal", 59))
sketch1.addConstraint(Sketcher.Constraint("Horizontal", 79))
sketch1.addConstraint(Sketcher.Constraint("Vertical", 87))
sketch1.addConstraint(Sketcher.Constraint("Coincident", 62, 3, -1, 1))
sketch1.addConstraint(Sketcher.Constraint("Coincident", 64, 3, -1, 1))
sketch1.addConstraint(Sketcher.Constraint("Coincident", 66, 3, -1, 1))
sketch1.addConstraint(Sketcher.Constraint("Coincident", 68, 3, -1, 1))
sketch1.addConstraint(Sketcher.Constraint("Coincident", 70, 3, -1, 1))
sketch1.addConstraint(Sketcher.Constraint("Equal", 69, 71))
sketch1.addConstraint(Sketcher.Constraint("Symmetric", 0, 2, 22, 2, -1, 1))
sketch1.addConstraint(Sketcher.Constraint("Symmetric", 2, 2, 24, 2, -1, 1))
sketch1.addConstraint(Sketcher.Constraint("Symmetric", 3, 2, 25, 2, -1, 1))
sketch1.addConstraint(Sketcher.Constraint("Symmetric", 5, 2, 27, 2, -1, 1))
sketch1.addConstraint(Sketcher.Constraint("Symmetric", 6, 2, 28, 2, -1, 1))
sketch1.addConstraint(Sketcher.Constraint("Symmetric", 8, 2, 30, 2, -1, 1))
sketch1.addConstraint(Sketcher.Constraint("Symmetric", 10, 2, 32, 2, -1, 1))
sketch1.addConstraint(Sketcher.Constraint("Symmetric", 11, 2, 33, 2, -1, 1))
sketch1.addConstraint(Sketcher.Constraint("Symmetric", 13, 2, 35, 2, -1, 1))
sketch1.addConstraint(Sketcher.Constraint("Symmetric", 14, 2, 36, 2, -1, 1))
sketch1.addConstraint(Sketcher.Constraint("Symmetric", 16, 2, 38, 2, -1, 1))
sketch1.addConstraint(Sketcher.Constraint("Symmetric", 17, 2, 39, 2, -1, 1))
sketch1.addConstraint(Sketcher.Constraint("Symmetric", 19, 2, 41, 2, -1, 1))
sketch1.addConstraint(Sketcher.Constraint("Symmetric", 21, 2, 43, 2, -1, 1))
sketch1.addConstraint(Sketcher.Constraint("Symmetric", 54, 2, 74, 2, -1, 1))
sketch1.addConstraint(Sketcher.Constraint("Symmetric", 55, 2, 75, 2, -1, 1))
sketch1.addConstraint(Sketcher.Constraint("Symmetric", 56, 2, 76, 2, -1, 1))
sketch1.addConstraint(Sketcher.Constraint("Symmetric", 57, 2, 77, 2, -1, 1))
sketch1.addConstraint(Sketcher.Constraint("Symmetric", 58, 2, 78, 2, -1, 1))
sketch1.addConstraint(Sketcher.Constraint("Symmetric", 60, 2, 80, 2, -1, 1))
sketch1.addConstraint(Sketcher.Constraint("Symmetric", 61, 2, 81, 2, -1, 1))
sketch1.addConstraint(Sketcher.Constraint("Symmetric", 53, 2, 82, 2, -1, 1))
sketch1.addConstraint(Sketcher.Constraint("Symmetric", 51, 2, 83, 2, -1, 1))
sketch1.addConstraint(Sketcher.Constraint("Symmetric", 46, 2, 84, 2, -1, 1))
sketch1.addConstraint(Sketcher.Constraint("Symmetric", 48, 2, 85, 2, -1, 1))
sketch1.addConstraint(Sketcher.Constraint("Symmetric", 49, 2, 86, 2, -1, 1))
sketch1.addConstraint(Sketcher.Constraint("Symmetric", 16, 2, 19, 2, -2))
sketch1.addConstraint(Sketcher.Constraint("Symmetric", 14, 2, 21, 2, -2))
sketch1.addConstraint(Sketcher.Constraint("Symmetric", 13, 2, 22, 2, -2))
sketch1.addConstraint(Sketcher.Constraint("Symmetric", 11, 2, 24, 2, -2))
sketch1.addConstraint(Sketcher.Constraint("Symmetric", 10, 2, 25, 2, -2))
sketch1.addConstraint(Sketcher.Constraint("Symmetric", 8, 2, 27, 2, -2))
sketch1.addConstraint(Sketcher.Constraint("Symmetric", 44, 2, 53, 2, -2))
sketch1.addConstraint(Sketcher.Constraint("Symmetric", 49, 2, 58, 2, -2))
sketch1.addConstraint(Sketcher.Constraint("PointOnObject", 71, 1, -1))
sketch1.addConstraint(Sketcher.Constraint("Parallel", 0, 3))
sketch1.addConstraint(Sketcher.Constraint("Parallel", 3, 6))
sketch1.addConstraint(Sketcher.Constraint("Perpendicular", 6, 8))
sketch1.addConstraint(Sketcher.Constraint("Parallel", 8, 11))
sketch1.addConstraint(Sketcher.Constraint("Parallel", 14, 17))
sketch1.addConstraint(Sketcher.Constraint("Perpendicular", 17, 19))
sketch1.addConstraint(Sketcher.Constraint("Perpendicular", 28, 30))
sketch1.addConstraint(Sketcher.Constraint("Perpendicular", 39, 41))
sketch1.addConstraint(Sketcher.Constraint("Parallel", 44, 45))
sketch1.addConstraint(Sketcher.Constraint("Parallel", 45, 46))
sketch1.addConstraint(Sketcher.Constraint("Perpendicular", 46, 47))
sketch1.addConstraint(Sketcher.Constraint("Parallel", 47, 51))
sketch1.addConstraint(Sketcher.Constraint("Perpendicular", 51, 52))
sketch1.addConstraint(Sketcher.Constraint("Perpendicular", 52, 53))
sketch1.addConstraint(Sketcher.Constraint("Parallel", 53, 54))
sketch1.addConstraint(Sketcher.Constraint("Parallel", 54, 55))
sketch1.addConstraint(Sketcher.Constraint("Perpendicular", 55, 56))
sketch1.addConstraint(Sketcher.Constraint("Perpendicular", 48, 57))
sketch1.addConstraint(Sketcher.Constraint("Perpendicular", 49, 58))
sketch1.addConstraint(Sketcher.Constraint("Parallel", 56, 60))
sketch1.addConstraint(Sketcher.Constraint("Perpendicular", 60, 61))
sketch1.addConstraint(Sketcher.Constraint("Parallel", 76, 80))
sketch1.addConstraint(Sketcher.Constraint("Parallel", 82, 83))
sketch1.addConstraint(Sketcher.Constraint("Perpendicular", 84, 85))
sketch1.addConstraint(Sketcher.Constraint("Horizontal", 3, 2, 6, 2))
sketch1.addConstraint(Sketcher.Constraint("Horizontal", 21, 2, 47, 2))
sketch1.addConstraint(Sketcher.Constraint("Horizontal", 47, 2, 49, 2))
sketch1.addConstraint(Sketcher.Constraint("Horizontal", 19, 2, 50, 2))
sketch1.addConstraint(Sketcher.Constraint("Horizontal", 62, 1, 63, 1))
sketch1.addConstraint(Sketcher.Constraint("Horizontal", 68, 1, 69, 1))
sketch1.addConstraint(Sketcher.Constraint("Horizontal", 66, 1, 70, 1))
sketch1.addConstraint(Sketcher.Constraint("Horizontal", 65, 1, 72, 1))
sketch1.addConstraint(Sketcher.Constraint("Horizontal", 64, 1, 73, 1))
sketch1.addConstraint(Sketcher.Constraint("Vertical", 14, 2, 17, 2))
sketch1.addConstraint(Sketcher.Constraint("Vertical", 10, 2, 49, 2))
sketch1.addConstraint(Sketcher.Constraint("Vertical", 32, 2, 56, 2))
sketch1.addConstraint(Sketcher.Constraint("Vertical", 30, 2, 59, 2))
sketch1.addConstraint(Sketcher.Constraint("Vertical", 65, 1, 66, 1))
sketch1.addConstraint(Sketcher.Constraint("Vertical", 64, 1, 67, 1))
sketch1.addConstraint(Sketcher.Constraint("Vertical", 63, 1, 68, 1))
sketch1.addConstraint(Sketcher.Constraint("Equal", 35, 2))
sketch1.addConstraint(Sketcher.Constraint("Equal", 43, 4))
sketch1.addConstraint(Sketcher.Constraint("Equal", 40, 7))
sketch1.addConstraint(Sketcher.Constraint("Equal", 79, 16))
sketch1.addConstraint(Sketcher.Constraint("Equal", 0, 3))
sketch1.addConstraint(Sketcher.Constraint("Equal", 44, 45))
sketch1.addConstraint(Sketcher.Constraint("Equal", 45, 53))
sketch1.addConstraint(Sketcher.Constraint("Equal", 53, 54))
sketch1.addConstraint(Sketcher.Constraint("Equal", 46, 55))
sketch1.addConstraint(Sketcher.Constraint("Equal", 47, 56))
sketch1.addConstraint(Sketcher.Constraint("Equal", 83, 85))
sketch1.addConstraint(Sketcher.Constraint("Radius", 70, Q("2.100001 mm")))
sketch1.addConstraint(Sketcher.Constraint("DistanceY", -1, 1, 0, 2, Q("10 mm")))
sketch1.addConstraint(Sketcher.Constraint("Distance", 51, Q("0.5 mm")))
sketch1.addConstraint(Sketcher.Constraint("DistanceX", 1, 2, 1, 1, Q("6.26 mm")))
sketch1.addConstraint(Sketcher.Constraint("DistanceX", 5, 1, 5, 2, Q("1.64 mm")))
sketch1.addConstraint(Sketcher.Constraint("DistanceX", 18, 1, 18, 2, Q("5.68 mm")))
sketch1.addConstraint(Sketcher.Constraint("DistanceX", 15, 2, 15, 1, Q("3.55934 mm")))
sketch1.addConstraint(Sketcher.Constraint("DistanceY", 45, 2, -1, 1, Q("8.470702 mm")))
sketch1.addConstraint(Sketcher.Constraint("Distance", 44, Q("0.75004 mm")))
sketch1.addConstraint(Sketcher.Constraint("Distance", 84, Q("2.33029 mm")))
sketch1.addConstraint(Sketcher.Constraint("DistanceX", -1, 1, 62, 1, Q("0.856663 mm")))
sketch1.addConstraint(Sketcher.Constraint("DistanceX", 64, 1, -1, 1, Q("1.484924 mm")))
sketch1.addConstraint(Sketcher.Constraint("DistanceX", 65, 1, -1, 1, Q("1.917323 mm")))
pad1 = doc.addObject("PartDesign::Pad", "Pad")
body.addObject(pad1)
pad1.Profile = sketch1
pad1.Length = 1000
doc.recompute()

fillet = doc.addObject("PartDesign::Fillet", "Fillet")
body.addObject(fillet)
fillet.Base = (pad1, edges_at(pad1, [
    (10, -500, 10),
    (-10, -500, 10),
    (-10, -500, -10),
    (10, -500, -10),
]))
fillet.Radius = 1.5

doc.recompute()
